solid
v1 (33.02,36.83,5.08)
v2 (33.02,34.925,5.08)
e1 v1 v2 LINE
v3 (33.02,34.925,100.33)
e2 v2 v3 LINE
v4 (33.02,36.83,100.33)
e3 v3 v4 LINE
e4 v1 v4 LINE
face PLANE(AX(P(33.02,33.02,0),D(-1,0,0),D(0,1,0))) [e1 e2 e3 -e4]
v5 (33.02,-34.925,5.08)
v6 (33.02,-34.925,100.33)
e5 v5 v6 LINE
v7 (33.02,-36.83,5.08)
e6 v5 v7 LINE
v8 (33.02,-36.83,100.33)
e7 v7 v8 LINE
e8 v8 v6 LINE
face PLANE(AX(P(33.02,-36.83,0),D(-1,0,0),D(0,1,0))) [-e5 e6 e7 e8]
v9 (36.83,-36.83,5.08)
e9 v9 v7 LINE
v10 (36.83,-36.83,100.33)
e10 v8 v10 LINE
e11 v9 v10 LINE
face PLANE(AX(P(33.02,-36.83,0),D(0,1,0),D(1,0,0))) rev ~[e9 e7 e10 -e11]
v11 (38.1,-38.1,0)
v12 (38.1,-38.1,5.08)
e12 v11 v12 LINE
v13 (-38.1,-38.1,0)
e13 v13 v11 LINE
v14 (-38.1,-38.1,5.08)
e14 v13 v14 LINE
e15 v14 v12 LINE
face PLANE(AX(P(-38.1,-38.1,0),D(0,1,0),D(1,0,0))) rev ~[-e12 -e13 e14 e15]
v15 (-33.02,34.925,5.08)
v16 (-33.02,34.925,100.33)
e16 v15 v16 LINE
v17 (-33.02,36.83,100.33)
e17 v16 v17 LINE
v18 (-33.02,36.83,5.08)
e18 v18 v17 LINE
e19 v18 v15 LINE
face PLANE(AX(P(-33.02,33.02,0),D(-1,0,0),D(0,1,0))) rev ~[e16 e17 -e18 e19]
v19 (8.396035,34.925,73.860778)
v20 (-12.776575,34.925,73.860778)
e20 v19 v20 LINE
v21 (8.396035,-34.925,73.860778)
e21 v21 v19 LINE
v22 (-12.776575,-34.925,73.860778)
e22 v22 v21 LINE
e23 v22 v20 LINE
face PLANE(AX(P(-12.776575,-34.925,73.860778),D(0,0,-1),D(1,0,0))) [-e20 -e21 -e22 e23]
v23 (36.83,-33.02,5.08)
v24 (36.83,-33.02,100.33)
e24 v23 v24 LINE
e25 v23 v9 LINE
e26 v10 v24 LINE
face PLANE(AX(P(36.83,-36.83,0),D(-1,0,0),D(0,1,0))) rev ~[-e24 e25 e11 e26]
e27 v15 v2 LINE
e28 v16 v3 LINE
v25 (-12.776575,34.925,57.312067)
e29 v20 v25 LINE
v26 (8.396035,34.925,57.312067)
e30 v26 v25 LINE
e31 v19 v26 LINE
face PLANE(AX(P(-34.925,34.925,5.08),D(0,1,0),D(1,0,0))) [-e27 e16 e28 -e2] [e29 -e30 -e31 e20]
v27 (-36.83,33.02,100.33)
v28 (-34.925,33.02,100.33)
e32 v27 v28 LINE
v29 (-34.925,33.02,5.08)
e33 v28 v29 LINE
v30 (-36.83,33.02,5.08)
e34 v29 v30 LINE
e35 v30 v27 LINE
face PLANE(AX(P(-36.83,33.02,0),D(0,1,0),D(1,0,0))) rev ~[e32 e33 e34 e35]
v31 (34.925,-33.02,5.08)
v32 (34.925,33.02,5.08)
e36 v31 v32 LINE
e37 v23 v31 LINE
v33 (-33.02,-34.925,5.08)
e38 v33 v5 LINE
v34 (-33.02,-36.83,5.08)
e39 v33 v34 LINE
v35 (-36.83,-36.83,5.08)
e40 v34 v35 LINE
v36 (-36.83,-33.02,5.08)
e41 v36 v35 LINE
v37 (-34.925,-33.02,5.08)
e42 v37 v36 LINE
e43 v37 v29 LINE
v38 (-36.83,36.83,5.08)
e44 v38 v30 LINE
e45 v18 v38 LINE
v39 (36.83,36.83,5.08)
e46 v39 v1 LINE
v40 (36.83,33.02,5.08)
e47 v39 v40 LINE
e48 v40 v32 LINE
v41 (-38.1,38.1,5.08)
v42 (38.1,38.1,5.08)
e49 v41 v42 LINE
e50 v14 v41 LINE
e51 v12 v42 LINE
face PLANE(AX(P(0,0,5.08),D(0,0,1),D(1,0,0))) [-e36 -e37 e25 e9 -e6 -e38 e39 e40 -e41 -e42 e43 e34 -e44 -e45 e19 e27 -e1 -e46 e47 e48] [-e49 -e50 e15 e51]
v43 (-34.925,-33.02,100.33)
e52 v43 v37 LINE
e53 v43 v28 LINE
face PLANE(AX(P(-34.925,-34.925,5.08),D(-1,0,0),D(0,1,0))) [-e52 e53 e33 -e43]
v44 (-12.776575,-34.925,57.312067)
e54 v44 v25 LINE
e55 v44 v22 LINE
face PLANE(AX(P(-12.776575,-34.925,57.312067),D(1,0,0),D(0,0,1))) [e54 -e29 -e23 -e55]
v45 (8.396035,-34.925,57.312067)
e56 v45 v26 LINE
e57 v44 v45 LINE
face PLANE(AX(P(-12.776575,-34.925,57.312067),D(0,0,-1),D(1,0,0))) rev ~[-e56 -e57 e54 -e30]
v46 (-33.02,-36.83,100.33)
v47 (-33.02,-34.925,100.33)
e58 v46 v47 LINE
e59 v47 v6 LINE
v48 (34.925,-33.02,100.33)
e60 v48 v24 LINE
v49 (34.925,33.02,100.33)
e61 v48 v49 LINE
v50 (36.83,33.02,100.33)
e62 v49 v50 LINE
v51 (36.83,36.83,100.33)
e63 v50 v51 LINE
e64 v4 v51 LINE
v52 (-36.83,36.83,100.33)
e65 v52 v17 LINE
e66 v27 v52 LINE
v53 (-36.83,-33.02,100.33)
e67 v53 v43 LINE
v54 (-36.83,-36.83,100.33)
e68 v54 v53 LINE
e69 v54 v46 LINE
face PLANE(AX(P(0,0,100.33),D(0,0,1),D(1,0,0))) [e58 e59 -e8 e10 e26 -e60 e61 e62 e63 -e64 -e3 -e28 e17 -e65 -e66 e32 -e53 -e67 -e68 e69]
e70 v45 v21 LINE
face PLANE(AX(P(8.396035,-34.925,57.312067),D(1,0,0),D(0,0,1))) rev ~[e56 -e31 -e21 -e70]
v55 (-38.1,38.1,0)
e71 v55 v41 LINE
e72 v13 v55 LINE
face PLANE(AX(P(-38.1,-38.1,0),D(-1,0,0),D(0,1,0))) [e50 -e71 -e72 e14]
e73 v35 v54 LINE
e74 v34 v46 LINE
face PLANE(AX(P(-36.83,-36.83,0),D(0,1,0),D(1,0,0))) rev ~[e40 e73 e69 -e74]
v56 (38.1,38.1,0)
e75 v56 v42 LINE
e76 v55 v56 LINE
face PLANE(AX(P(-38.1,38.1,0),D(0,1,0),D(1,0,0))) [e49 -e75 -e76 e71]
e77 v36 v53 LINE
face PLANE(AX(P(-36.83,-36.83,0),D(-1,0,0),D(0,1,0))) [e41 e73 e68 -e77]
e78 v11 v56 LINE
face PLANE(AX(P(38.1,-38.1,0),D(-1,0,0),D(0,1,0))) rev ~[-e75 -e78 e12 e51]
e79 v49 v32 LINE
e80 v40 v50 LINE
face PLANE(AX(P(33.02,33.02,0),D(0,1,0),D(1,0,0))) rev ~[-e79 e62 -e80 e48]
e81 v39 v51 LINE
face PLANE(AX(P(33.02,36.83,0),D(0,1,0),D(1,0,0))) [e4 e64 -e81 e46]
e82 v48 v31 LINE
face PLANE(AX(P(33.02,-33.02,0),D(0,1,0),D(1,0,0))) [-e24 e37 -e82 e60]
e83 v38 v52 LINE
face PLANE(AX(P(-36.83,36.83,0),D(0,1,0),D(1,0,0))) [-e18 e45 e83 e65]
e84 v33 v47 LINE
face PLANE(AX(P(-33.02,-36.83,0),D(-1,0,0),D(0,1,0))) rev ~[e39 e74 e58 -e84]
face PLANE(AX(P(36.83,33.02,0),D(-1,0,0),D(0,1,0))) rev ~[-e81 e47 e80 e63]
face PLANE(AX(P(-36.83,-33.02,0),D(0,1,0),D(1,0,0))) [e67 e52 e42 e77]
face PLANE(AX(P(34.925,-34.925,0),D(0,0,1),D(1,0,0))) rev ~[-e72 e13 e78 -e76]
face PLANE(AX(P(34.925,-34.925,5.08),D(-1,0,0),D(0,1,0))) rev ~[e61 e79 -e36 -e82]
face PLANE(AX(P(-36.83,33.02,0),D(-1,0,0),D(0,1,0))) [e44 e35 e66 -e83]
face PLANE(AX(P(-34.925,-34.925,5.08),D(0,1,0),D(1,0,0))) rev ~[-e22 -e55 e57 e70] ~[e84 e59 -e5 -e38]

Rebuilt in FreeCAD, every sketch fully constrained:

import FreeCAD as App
import Part
import Sketcher
Q = App.Units.Quantity


def add_polygon(sketch, points):
    """Adds a closed chain of lines whose ends are joined by coincident constraints."""
    first, n = sketch.GeometryCount, len(points)
    for a, b in zip(points, points[1:] + points[:1]):
        sketch.addGeometry(Part.LineSegment(App.Vector(*a, 0), App.Vector(*b, 0)), False)
    for i in range(n):
        sketch.addConstraint(Sketcher.Constraint("Coincident", first + i, 2, first + (i + 1) % n, 1))

doc = App.newDocument("Part")
params = doc.addObject("Spreadsheet::Sheet", "Params")
for row, (alias, value) in enumerate([
    ("sketch1_width", "3 in"),
    ("pad1_length", "0.2 in"),
    ("sketch2_width", "2.75 in"),
    ("pad2_length", "3.75 in"),
    ("sketch3_width", "0.15 in"),
    ("pad3_length", "3.95 in"),
], start=1):
    params.set(f"A{row}", alias)
    params.set(f"B{row}", "=" + value)
    params.setAlias(f"B{row}", alias)

body = doc.addObject("PartDesign::Body", "Body")

# Sketch on XY plane
sketch1 = body.newObject("Sketcher::SketchObject", "Sketch")
sketch1.AttachmentSupport = (doc.getObject("XY_Plane"), [""])
sketch1.MapMode = "FlatFace"
add_polygon(sketch1, [(-38.1, 38.1), (-38.1, -38.1), (38.1, -38.1), (38.1, 38.1)])  # lines 0-3
sketch1.addConstraint(Sketcher.Constraint("Vertical", 0))
sketch1.addConstraint(Sketcher.Constraint("Horizontal", 1))
sketch1.addConstraint(Sketcher.Constraint("Vertical", 2))
sketch1.addConstraint(Sketcher.Constraint("Horizontal", 3))
sketch1.addConstraint(Sketcher.Constraint("Symmetric", 0, 2, 2, 2, -1, 1))
sketch1.addConstraint(Sketcher.Constraint("Equal", 3, 0))
sketch1.addConstraint(Sketcher.Constraint("DistanceX", 1, 1, 1, 2, Q("3 in")))
sketch1.setExpression("Constraints[10]", "Params.sketch1_width")
pad1 = body.newObject("PartDesign::Pad", "Pad")
pad1.Profile = sketch1
pad1.setExpression("Length", "Params.pad1_length")

# Sketch on XY plane
sketch2 = body.newObject("Sketcher::SketchObject", "Sketch001")
sketch2.AttachmentSupport = (doc.getObject("XY_Plane"), [""])
sketch2.MapMode = "FlatFace"
sketch2.AttachmentOffset = App.Placement(App.Vector(0, 0, 0.2 * 25.4), App.Rotation())
add_polygon(sketch2, [(-34.925, 34.925), (-34.925, -34.925), (34.925, -34.925), (34.925, 34.925)])  # lines 0-3
sketch2.addConstraint(Sketcher.Constraint("Vertical", 0))
sketch2.addConstraint(Sketcher.Constraint("Horizontal", 1))
sketch2.addConstraint(Sketcher.Constraint("Vertical", 2))
sketch2.addConstraint(Sketcher.Constraint("Horizontal", 3))
sketch2.addConstraint(Sketcher.Constraint("Symmetric", 0, 2, 2, 2, -1, 1))
sketch2.addConstraint(Sketcher.Constraint("Equal", 3, 0))
sketch2.addConstraint(Sketcher.Constraint("DistanceX", 1, 1, 1, 2, Q("2.75 in")))
sketch2.setExpression("Constraints[10]", "Params.sketch2_width")
pad2 = body.newObject("PartDesign::Pad", "Pad001")
pad2.Profile = sketch2
pad2.setExpression("Length", "Params.pad2_length")

# Sketch on XY plane
sketch3 = body.newObject("Sketcher::SketchObject", "Sketch002")
sketch3.AttachmentSupport = (doc.getObject("XY_Plane"), [""])
sketch3.MapMode = "FlatFace"
add_polygon(sketch3, [(33.02, -33.02), (33.02, -36.83), (36.83, -36.83), (36.83, -33.02)])  # lines 0-3
add_polygon(sketch3, [(-36.83, -33.02), (-36.83, -36.83), (-33.02, -36.83), (-33.02, -33.02)])  # lines 4-7
add_polygon(sketch3, [(-36.83, 36.83), (-36.83, 33.02), (-33.02, 33.02), (-33.02, 36.83)])  # lines 8-11
add_polygon(sketch3, [(33.02, 36.83), (33.02, 33.02), (36.83, 33.02), (36.83, 36.83)])  # lines 12-15
sketch3.addConstraint(Sketcher.Constraint("Vertical", 0))
sketch3.addConstraint(Sketcher.Constraint("Horizontal", 1))
sketch3.addConstraint(Sketcher.Constraint("Vertical", 2))
sketch3.addConstraint(Sketcher.Constraint("Horizontal", 3))
sketch3.addConstraint(Sketcher.Constraint("Vertical", 4))
sketch3.addConstraint(Sketcher.Constraint("Horizontal", 5))
sketch3.addConstraint(Sketcher.Constraint("Vertical", 6))
sketch3.addConstraint(Sketcher.Constraint("Horizontal", 7))
sketch3.addConstraint(Sketcher.Constraint("Vertical", 8))
sketch3.addConstraint(Sketcher.Constraint("Horizontal", 9))
sketch3.addConstraint(Sketcher.Constraint("Vertical", 10))
sketch3.addConstraint(Sketcher.Constraint("Horizontal", 11))
sketch3.addConstraint(Sketcher.Constraint("Vertical", 12))
sketch3.addConstraint(Sketcher.Constraint("Horizontal", 13))
sketch3.addConstraint(Sketcher.Constraint("Vertical", 14))
sketch3.addConstraint(Sketcher.Constraint("Horizontal", 15))
sketch3.addConstraint(Sketcher.Constraint("Symmetric", 2, 2, 8, 2, -1, 1))
sketch3.addConstraint(Sketcher.Constraint("Symmetric", 0, 2, 10, 2, -1, 1))
sketch3.addConstraint(Sketcher.Constraint("Symmetric", 6, 2, 12, 2, -1, 1))
sketch3.addConstraint(Sketcher.Constraint("Symmetric", 4, 2, 14, 2, -1, 1))
sketch3.addConstraint(Sketcher.Constraint("Symmetric", 1, 2, 4, 2, -2))
sketch3.addConstraint(Sketcher.Constraint("Symmetric", 3, 2, 6, 2, -2))
sketch3.addConstraint(Sketcher.Constraint("Equal", 15, 0))
sketch3.addConstraint(Sketcher.Constraint("DistanceX", 1, 1, 1, 2, Q("0.15 in")))
sketch3.addConstraint(Sketcher.Constraint("DistanceX", -1, 1, 0, 2, Q("1.3 in")))
sketch3.addConstraint(Sketcher.Constraint("DistanceY", 2, 2, -1, 1, Q("1.3 in")))
sketch3.setExpression("Constraints[39]", "Params.sketch3_width")
pad3 = body.newObject("PartDesign::Pad", "Pad002")
pad3.Profile = sketch3
pad3.setExpression("Length", "Params.pad3_length")

# Sketch on XZ plane
sketch4 = body.newObject("Sketcher::SketchObject", "Sketch003")
sketch4.AttachmentSupport = (doc.getObject("XZ_Plane"), [""])
sketch4.MapMode = "FlatFace"
sketch4.AttachmentOffset = App.Placement(App.Vector(0, 0, 1.375 * 25.4), App.Rotation())
add_polygon(sketch4, [(-12.776575, 73.860778), (-12.776575, 57.312067), (8.396035, 57.312067), (8.396035, 73.860778)])  # lines 0-3
sketch4.addConstraint(Sketcher.Constraint("Vertical", 0))
sketch4.addConstraint(Sketcher.Constraint("Horizontal", 1))
sketch4.addConstraint(Sketcher.Constraint("Vertical", 2))
sketch4.addConstraint(Sketcher.Constraint("Horizontal", 3))
sketch4.addConstraint(Sketcher.Constraint("DistanceX", 1, 1, 1, 2, 21.172609))
sketch4.addConstraint(Sketcher.Constraint("DistanceY", 0, 2, 0, 1, 16.548711))
sketch4.addConstraint(Sketcher.Constraint("DistanceY", -1, 1, 2, 2, 73.860778))
sketch4.addConstraint(Sketcher.Constraint("DistanceX", 0, 2, -1, 1, 12.776575))
pocket1 = body.newObject("PartDesign::Pocket", "Pocket")
pocket1.Profile = sketch4
pocket1.Type = "ThroughAll"

doc.recompute()
